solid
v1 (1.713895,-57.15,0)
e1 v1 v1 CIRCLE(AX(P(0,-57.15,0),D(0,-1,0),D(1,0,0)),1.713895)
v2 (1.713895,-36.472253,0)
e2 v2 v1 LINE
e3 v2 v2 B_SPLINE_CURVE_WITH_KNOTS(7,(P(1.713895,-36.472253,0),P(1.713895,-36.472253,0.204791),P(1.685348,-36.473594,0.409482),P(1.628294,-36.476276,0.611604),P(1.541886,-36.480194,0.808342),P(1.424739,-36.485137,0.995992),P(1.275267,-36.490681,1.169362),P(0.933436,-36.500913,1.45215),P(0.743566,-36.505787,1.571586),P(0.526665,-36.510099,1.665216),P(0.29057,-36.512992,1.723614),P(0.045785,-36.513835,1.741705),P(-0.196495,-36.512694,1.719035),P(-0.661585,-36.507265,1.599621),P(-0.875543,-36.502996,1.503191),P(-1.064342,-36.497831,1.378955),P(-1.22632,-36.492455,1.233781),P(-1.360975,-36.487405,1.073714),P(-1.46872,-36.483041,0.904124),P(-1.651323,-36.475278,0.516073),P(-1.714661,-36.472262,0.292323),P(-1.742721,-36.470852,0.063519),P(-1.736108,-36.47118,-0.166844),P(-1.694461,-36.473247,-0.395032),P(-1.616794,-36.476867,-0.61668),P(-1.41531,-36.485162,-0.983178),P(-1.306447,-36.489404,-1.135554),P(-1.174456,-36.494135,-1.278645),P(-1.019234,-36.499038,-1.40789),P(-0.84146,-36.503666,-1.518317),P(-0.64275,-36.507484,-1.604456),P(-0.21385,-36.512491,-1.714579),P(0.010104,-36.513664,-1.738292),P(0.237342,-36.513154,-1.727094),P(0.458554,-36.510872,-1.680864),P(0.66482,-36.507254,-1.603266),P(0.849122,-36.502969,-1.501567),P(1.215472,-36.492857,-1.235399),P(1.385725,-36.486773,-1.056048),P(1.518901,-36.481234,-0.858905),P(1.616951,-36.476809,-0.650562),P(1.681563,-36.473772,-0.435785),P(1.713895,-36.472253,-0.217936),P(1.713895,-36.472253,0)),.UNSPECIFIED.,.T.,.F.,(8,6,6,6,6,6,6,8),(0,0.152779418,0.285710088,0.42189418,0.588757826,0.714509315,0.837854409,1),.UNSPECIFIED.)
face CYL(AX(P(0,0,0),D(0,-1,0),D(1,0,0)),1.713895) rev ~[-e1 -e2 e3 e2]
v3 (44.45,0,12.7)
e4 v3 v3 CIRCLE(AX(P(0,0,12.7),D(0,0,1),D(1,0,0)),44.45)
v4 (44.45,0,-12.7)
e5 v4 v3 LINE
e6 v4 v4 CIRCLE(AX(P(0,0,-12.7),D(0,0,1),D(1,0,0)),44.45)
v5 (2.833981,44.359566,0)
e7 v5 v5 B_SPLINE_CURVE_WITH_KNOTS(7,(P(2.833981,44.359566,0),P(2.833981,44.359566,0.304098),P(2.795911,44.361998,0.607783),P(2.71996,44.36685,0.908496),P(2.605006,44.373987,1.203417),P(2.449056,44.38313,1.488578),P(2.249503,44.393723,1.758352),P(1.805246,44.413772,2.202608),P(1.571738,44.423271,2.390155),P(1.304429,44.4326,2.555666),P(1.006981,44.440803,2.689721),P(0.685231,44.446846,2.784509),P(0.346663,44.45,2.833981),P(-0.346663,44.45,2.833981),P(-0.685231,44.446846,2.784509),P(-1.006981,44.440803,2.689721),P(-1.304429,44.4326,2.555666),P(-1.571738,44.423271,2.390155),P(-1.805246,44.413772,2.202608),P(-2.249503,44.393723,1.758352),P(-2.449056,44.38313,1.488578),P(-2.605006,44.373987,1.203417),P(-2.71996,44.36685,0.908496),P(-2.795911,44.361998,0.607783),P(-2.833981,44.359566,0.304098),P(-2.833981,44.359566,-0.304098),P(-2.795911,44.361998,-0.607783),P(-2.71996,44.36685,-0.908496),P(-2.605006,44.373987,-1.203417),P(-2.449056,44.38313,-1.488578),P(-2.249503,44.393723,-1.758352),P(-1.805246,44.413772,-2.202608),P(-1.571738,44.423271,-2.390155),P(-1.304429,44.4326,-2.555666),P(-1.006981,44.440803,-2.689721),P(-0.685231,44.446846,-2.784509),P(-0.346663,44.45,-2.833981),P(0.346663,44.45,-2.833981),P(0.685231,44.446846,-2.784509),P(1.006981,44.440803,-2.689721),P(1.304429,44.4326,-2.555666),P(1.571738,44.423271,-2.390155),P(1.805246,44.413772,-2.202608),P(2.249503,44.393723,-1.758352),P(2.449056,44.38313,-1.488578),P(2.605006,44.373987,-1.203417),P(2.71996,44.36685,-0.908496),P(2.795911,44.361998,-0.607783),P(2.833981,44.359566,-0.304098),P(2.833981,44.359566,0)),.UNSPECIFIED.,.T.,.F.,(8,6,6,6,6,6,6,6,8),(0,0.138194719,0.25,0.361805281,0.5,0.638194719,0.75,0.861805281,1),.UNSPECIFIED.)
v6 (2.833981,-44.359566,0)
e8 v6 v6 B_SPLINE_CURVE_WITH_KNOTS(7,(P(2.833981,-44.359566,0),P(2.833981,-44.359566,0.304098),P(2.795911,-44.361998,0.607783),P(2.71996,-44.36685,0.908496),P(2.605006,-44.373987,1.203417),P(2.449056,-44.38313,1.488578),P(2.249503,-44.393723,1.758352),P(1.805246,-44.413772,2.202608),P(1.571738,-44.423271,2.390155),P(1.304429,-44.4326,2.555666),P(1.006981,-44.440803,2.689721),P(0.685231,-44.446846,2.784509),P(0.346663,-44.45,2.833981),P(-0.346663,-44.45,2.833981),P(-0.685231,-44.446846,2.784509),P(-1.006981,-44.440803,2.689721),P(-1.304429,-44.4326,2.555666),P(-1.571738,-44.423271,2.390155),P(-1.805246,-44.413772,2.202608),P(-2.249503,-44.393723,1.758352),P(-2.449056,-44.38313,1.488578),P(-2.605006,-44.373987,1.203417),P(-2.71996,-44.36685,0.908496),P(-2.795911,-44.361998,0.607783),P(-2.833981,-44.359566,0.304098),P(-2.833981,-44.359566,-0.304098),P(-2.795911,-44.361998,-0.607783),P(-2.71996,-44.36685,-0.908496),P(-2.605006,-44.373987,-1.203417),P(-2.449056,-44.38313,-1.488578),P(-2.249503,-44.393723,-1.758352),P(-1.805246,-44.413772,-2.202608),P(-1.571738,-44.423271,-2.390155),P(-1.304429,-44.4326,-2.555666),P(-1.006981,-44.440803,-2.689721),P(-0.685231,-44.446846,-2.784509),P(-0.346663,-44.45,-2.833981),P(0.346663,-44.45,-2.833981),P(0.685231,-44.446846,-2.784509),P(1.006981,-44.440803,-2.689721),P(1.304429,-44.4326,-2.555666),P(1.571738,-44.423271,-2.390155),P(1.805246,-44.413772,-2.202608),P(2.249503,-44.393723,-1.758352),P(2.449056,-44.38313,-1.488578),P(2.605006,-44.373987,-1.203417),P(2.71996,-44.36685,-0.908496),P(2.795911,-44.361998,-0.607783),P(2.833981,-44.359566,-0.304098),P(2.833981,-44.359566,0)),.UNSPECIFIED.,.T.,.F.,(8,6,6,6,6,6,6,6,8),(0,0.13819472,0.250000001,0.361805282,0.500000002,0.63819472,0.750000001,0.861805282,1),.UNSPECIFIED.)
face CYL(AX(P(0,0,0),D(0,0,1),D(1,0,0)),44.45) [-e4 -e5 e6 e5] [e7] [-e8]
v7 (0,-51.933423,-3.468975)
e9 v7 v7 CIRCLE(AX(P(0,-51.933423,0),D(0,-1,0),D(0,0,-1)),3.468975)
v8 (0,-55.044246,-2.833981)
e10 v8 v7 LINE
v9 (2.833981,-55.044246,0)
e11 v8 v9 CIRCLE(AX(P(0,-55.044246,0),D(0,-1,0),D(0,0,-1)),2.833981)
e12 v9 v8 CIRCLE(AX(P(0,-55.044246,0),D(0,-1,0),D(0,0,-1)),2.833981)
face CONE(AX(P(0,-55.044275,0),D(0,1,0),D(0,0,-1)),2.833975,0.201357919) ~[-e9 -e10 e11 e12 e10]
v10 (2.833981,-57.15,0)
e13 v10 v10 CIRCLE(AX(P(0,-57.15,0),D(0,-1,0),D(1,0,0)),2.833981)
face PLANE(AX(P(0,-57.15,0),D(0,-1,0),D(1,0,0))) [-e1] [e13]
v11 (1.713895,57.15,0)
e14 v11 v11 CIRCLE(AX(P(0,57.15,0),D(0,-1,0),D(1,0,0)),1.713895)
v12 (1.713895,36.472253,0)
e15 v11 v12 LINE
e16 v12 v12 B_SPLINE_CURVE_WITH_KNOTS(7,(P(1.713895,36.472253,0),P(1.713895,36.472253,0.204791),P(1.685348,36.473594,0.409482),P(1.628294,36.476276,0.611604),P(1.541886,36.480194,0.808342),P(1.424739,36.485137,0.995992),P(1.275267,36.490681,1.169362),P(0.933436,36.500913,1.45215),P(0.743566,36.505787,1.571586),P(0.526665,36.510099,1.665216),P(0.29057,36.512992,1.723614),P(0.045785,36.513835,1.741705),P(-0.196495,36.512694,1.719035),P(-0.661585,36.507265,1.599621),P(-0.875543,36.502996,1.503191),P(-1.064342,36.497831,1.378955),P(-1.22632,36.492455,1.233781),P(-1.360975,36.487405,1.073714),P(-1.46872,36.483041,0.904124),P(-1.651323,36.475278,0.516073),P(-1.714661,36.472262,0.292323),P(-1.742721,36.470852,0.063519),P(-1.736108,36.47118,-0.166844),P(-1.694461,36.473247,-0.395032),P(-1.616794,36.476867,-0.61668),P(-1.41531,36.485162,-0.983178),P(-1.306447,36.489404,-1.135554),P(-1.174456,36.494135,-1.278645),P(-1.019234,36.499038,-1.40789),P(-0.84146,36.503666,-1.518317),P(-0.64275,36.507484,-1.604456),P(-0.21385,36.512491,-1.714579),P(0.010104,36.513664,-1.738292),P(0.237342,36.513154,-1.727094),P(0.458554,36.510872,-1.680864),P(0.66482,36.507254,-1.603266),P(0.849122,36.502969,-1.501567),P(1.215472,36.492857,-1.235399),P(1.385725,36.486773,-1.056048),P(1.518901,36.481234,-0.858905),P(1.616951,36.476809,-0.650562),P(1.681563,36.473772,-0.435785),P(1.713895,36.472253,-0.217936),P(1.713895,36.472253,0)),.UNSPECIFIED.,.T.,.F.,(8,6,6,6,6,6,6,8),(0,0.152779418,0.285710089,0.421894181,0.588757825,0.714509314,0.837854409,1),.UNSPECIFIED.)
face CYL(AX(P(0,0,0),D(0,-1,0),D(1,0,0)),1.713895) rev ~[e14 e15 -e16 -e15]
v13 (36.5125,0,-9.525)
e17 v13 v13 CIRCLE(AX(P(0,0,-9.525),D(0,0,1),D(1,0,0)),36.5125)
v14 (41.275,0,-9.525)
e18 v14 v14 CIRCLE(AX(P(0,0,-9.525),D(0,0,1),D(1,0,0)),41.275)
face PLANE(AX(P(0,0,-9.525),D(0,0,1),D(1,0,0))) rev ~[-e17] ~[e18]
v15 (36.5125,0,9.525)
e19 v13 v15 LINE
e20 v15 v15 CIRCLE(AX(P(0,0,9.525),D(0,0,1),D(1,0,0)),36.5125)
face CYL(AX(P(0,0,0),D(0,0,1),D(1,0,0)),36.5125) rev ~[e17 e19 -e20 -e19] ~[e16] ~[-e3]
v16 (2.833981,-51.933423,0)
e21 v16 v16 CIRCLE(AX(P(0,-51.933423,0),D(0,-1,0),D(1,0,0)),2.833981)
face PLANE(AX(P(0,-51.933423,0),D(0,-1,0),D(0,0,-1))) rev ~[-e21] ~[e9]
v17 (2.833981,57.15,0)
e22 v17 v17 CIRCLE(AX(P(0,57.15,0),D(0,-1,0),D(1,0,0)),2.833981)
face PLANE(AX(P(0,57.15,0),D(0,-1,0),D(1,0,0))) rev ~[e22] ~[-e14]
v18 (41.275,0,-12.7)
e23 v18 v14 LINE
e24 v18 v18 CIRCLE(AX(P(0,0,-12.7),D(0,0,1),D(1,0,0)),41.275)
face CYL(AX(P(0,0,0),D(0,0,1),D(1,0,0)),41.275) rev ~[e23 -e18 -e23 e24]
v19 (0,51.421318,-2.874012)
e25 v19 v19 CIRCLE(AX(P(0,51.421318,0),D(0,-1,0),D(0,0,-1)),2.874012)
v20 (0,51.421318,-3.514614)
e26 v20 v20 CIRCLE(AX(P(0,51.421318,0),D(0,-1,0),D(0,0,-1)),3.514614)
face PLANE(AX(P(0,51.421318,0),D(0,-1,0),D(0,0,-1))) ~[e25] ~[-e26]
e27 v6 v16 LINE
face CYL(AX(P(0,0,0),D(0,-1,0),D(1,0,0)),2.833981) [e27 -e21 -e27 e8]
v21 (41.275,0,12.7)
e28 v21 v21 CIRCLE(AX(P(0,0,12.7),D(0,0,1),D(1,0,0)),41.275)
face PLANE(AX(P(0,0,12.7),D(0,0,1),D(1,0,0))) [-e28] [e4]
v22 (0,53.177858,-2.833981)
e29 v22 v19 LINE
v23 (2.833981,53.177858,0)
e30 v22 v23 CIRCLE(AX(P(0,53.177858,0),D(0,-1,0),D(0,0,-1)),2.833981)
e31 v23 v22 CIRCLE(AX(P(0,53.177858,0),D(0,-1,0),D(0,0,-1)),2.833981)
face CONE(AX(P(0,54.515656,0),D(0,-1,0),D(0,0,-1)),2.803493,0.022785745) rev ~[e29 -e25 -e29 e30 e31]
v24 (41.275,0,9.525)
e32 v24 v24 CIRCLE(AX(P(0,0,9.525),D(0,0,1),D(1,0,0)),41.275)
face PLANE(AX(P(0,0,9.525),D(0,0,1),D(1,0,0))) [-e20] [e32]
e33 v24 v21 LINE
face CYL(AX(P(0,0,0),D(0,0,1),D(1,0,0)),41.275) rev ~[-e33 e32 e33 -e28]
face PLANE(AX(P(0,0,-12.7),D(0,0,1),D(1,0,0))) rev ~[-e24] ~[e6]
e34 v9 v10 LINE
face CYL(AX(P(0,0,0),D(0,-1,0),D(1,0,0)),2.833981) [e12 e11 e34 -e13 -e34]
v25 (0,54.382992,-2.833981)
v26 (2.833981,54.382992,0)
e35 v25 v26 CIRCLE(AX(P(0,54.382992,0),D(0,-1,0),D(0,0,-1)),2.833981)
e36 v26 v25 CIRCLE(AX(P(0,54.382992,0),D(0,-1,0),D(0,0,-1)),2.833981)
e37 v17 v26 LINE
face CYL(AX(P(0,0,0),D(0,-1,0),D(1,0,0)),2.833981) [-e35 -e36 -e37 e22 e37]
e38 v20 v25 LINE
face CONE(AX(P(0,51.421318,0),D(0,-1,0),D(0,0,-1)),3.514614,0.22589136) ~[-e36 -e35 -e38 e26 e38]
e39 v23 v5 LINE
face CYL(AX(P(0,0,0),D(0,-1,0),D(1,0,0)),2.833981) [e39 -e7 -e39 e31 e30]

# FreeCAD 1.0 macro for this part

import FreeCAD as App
import Part
import Sketcher
Q = App.Units.Quantity

doc = App.newDocument("Part")
body = doc.addObject("PartDesign::Body", "Body")

sketch1 = body.newObject("Sketcher::SketchObject", "Sketch")
sketch1.AttachmentSupport = (doc.getObject("XY_Plane"), [""])
sketch1.MapMode = "FlatFace"
sketch1.addGeometry(Part.Circle(App.Vector(0, 0, 0), App.Vector(0, 0, 1), 44), False)
sketch1.addConstraint(Sketcher.Constraint("Coincident", 0, 3, -1, 1))
sketch1.addConstraint(Sketcher.Constraint("Diameter", 0, Q("3.5 in")))
pad1 = body.newObject("PartDesign::Pad", "Pad")
pad1.Profile = sketch1
pad1.Length = Q("1 in")
pad1.Midplane = True

sketch2 = body.newObject("Sketcher::SketchObject", "Sketch001")
sketch2.AttachmentSupport = (doc.getObject("XY_Plane"), [""])
sketch2.MapMode = "FlatFace"
sketch2.addGeometry(Part.Circle(App.Vector(0, 0, 0), App.Vector(0, 0, 1), 41), False)
sketch2.addConstraint(Sketcher.Constraint("Coincident", 0, 3, -1, 1))
sketch2.addConstraint(Sketcher.Constraint("Diameter", 0, Q("3.25 in")))
pocket1 = body.newObject("PartDesign::Pocket", "Pocket")
pocket1.Profile = sketch2
pocket1.Length = Q("1 in")
pocket1.Midplane = True

sketch3 = body.newObject("Sketcher::SketchObject", "Sketch002")
sketch3.AttachmentSupport = (doc.getObject("XY_Plane"), [""])
sketch3.MapMode = "FlatFace"
sketch3.addGeometry(Part.Circle(App.Vector(0, 0, 0), App.Vector(0, 0, 1), 41), False)
sketch3.addConstraint(Sketcher.Constraint("Coincident", 0, 3, -1, 1))
sketch3.addConstraint(Sketcher.Constraint("Diameter", 0, Q("3.25 in")))
pad2 = body.newObject("PartDesign::Pad", "Pad001")
pad2.Profile = sketch3
pad2.Length = Q("0.75 in")
pad2.Midplane = True

sketch4 = body.newObject("Sketcher::SketchObject", "Sketch003")
sketch4.AttachmentSupport = (doc.getObject("XZ_Plane"), [""])
sketch4.MapMode = "FlatFace"
sketch4.addGeometry(Part.Circle(App.Vector(0, 0, 0), App.Vector(0, 0, 1), 2.8), False)
sketch4.addConstraint(Sketcher.Constraint("Coincident", 0, 3, -1, 1))
sketch4.addConstraint(Sketcher.Constraint("Diameter", 0, Q("5.667962 mm")))
pad3 = body.newObject("PartDesign::Pad", "Pad002")
pad3.Profile = sketch4
pad3.Length = Q("4.5 in")
pad3.Midplane = True

sketch5 = body.newObject("Sketcher::SketchObject", "Sketch004")
sketch5.AttachmentSupport = (doc.getObject("YZ_Plane"), [""])
sketch5.MapMode = "FlatFace"
sketch5.addGeometry(Part.LineSegment(App.Vector(-51.9, -2.8, 0), App.Vector(-55, -2.8, 0)), False)
sketch5.addGeometry(Part.LineSegment(App.Vector(-55, -2.8, 0), App.Vector(-51.9, -3.5, 0)), False)
sketch5.addGeometry(Part.LineSegment(App.Vector(-51.9, -3.5, 0), App.Vector(-51.9, -2.8, 0)), False)
sketch5.addConstraint(Sketcher.Constraint("Coincident", 0, 2, 1, 1))
sketch5.addConstraint(Sketcher.Constraint("Coincident", 1, 2, 2, 1))
sketch5.addConstraint(Sketcher.Constraint("Coincident", 2, 2, 0, 1))
sketch5.addConstraint(Sketcher.Constraint("Horizontal", 0))
sketch5.addConstraint(Sketcher.Constraint("Vertical", 2))
sketch5.addConstraint(Sketcher.Constraint("DistanceY", 2, 1, 2, 2, Q("0.025 in")))
sketch5.addConstraint(Sketcher.Constraint("Distance", 1, Q("0.125 in")))
sketch5.addConstraint(Sketcher.Constraint("DistanceX", 0, 2, -1, 1, Q("55.044275 mm")))
sketch5.addConstraint(Sketcher.Constraint("DistanceY", 0, 2, -1, 1, Q("2.833975 mm")))
revolution = body.newObject("PartDesign::Revolution", "Revolution")
revolution.Profile = sketch5
revolution.ReferenceAxis = (sketch5, ["H_Axis"])
revolution.Angle = 360

sketch6 = body.newObject("Sketcher::SketchObject", "Sketch005")
sketch6.AttachmentSupport = (doc.getObject("XZ_Plane"), [""])
sketch6.MapMode = "FlatFace"
sketch6.addGeometry(Part.Circle(App.Vector(0, 0, 0), App.Vector(0, 0, 1), 1.7), False)
sketch6.addConstraint(Sketcher.Constraint("Coincident", 0, 3, -1, 1))
sketch6.addConstraint(Sketcher.Constraint("Diameter", 0, Q("3.42779 mm")))
pocket2 = body.newObject("PartDesign::Pocket", "Pocket001")
pocket2.Profile = sketch6
pocket2.Length = Q("4.5 in")
pocket2.Midplane = True

sketch7 = body.newObject("Sketcher::SketchObject", "Sketch006")
sketch7.AttachmentSupport = (doc.getObject("YZ_Plane"), [""])
sketch7.MapMode = "FlatFace"
sketch7.addGeometry(Part.LineSegment(App.Vector(51.4, -3.5, 0), App.Vector(54.5, -2.8, 0)), False)
sketch7.addGeometry(Part.LineSegment(App.Vector(54.5, -2.8, 0), App.Vector(51.4, -2.9, 0)), False)
sketch7.addGeometry(Part.LineSegment(App.Vector(51.4, -2.9, 0), App.Vector(51.4, -3.5, 0)), False)
sketch7.addConstraint(Sketcher.Constraint("Coincident", 0, 2, 1, 1))
sketch7.addConstraint(Sketcher.Constraint("Coincident", 1, 2, 2, 1))
sketch7.addConstraint(Sketcher.Constraint("Coincident", 2, 2, 0, 1))
sketch7.addConstraint(Sketcher.Constraint("Vertical", 2))
sketch7.addConstraint(Sketcher.Constraint("Distance", 0, Q("0.125 in")))
sketch7.addConstraint(Sketcher.Constraint("DistanceY", 2, 2, 2, 1, Q("0.640602 mm")))
sketch7.addConstraint(Sketcher.Constraint("Distance", 1, Q("3.095141 mm")))
sketch7.addConstraint(Sketcher.Constraint("DistanceY", 1, 2, -1, 1, Q("2.874012 mm")))
sketch7.addConstraint(Sketcher.Constraint("DistanceX", -1, 1, 0, 2, Q("54.515656 mm")))
revolution2 = body.newObject("PartDesign::Revolution", "Revolution001")
revolution2.Profile = sketch7
revolution2.ReferenceAxis = (sketch7, ["H_Axis"])
revolution2.Angle = 360

sketch8 = body.newObject("Sketcher::SketchObject", "Sketch007")
sketch8.AttachmentSupport = (doc.getObject("XY_Plane"), [""])
sketch8.MapMode = "FlatFace"
sketch8.addGeometry(Part.Circle(App.Vector(0, 0, 0), App.Vector(0, 0, 1), 37), False)
sketch8.addConstraint(Sketcher.Constraint("Coincident", 0, 3, -1, 1))
sketch8.addConstraint(Sketcher.Constraint("Diameter", 0, Q("2.875 in")))
pocket3 = body.newObject("PartDesign::Pocket", "Pocket002")
pocket3.Profile = sketch8
pocket3.Length = Q("1 in")
pocket3.Midplane = True

doc.recompute()
